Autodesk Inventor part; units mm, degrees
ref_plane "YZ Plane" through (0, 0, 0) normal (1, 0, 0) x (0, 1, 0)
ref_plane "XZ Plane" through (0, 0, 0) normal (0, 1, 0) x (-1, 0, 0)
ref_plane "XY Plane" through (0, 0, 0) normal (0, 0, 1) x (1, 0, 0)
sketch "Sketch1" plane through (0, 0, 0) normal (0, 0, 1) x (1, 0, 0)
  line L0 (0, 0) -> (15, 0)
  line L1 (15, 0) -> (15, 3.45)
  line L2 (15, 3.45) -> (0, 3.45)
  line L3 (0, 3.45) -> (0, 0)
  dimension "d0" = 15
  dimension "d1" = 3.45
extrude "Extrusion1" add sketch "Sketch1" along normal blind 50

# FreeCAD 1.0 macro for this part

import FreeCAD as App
import Part
import Sketcher
Q = App.Units.Quantity

doc = App.newDocument("Part")
body = doc.addObject("PartDesign::Body", "Body")

# Sketch on XY plane
sketch1 = body.newObject("Sketcher::SketchObject", "Sketch")
sketch1.AttachmentSupport = (doc.getObject("XY_Plane"), [""])
sketch1.MapMode = "FlatFace"
sketch1.addGeometry([
    Part.LineSegment(App.Vector(0, 3.45, 0), App.Vector(0, 0, 0)),
    Part.LineSegment(App.Vector(0, 0, 0), App.Vector(15, 0, 0)),
    Part.LineSegment(App.Vector(15, 0, 0), App.Vector(15, 3.45, 0)),
    Part.LineSegment(App.Vector(15, 3.45, 0), App.Vector(0, 3.45, 0)),
], False)
sketch1.addConstraint([
    Sketcher.Constraint("Coincident", 0, 2, 1, 1),
    Sketcher.Constraint("Coincident", 1, 2, 2, 1),
    Sketcher.Constraint("Coincident", 2, 2, 3, 1),
    Sketcher.Constraint("Coincident", 3, 2, 0, 1),
    Sketcher.Constraint("Vertical", 0),
    Sketcher.Constraint("Horizontal", 1),
    Sketcher.Constraint("Vertical", 2),
    Sketcher.Constraint("Horizontal", 3),
    Sketcher.Constraint("Coincident", 0, 2, -1, 1),
    Sketcher.Constraint("DistanceX", 1, 1, 1, 2, Q("15 mm")),
    Sketcher.Constraint("DistanceY", 0, 2, 0, 1, Q("3.45 mm")),
])
pad1 = body.newObject("PartDesign::Pad", "Pad")
pad1.Profile = sketch1
pad1.Length = 50

doc.recompute()
